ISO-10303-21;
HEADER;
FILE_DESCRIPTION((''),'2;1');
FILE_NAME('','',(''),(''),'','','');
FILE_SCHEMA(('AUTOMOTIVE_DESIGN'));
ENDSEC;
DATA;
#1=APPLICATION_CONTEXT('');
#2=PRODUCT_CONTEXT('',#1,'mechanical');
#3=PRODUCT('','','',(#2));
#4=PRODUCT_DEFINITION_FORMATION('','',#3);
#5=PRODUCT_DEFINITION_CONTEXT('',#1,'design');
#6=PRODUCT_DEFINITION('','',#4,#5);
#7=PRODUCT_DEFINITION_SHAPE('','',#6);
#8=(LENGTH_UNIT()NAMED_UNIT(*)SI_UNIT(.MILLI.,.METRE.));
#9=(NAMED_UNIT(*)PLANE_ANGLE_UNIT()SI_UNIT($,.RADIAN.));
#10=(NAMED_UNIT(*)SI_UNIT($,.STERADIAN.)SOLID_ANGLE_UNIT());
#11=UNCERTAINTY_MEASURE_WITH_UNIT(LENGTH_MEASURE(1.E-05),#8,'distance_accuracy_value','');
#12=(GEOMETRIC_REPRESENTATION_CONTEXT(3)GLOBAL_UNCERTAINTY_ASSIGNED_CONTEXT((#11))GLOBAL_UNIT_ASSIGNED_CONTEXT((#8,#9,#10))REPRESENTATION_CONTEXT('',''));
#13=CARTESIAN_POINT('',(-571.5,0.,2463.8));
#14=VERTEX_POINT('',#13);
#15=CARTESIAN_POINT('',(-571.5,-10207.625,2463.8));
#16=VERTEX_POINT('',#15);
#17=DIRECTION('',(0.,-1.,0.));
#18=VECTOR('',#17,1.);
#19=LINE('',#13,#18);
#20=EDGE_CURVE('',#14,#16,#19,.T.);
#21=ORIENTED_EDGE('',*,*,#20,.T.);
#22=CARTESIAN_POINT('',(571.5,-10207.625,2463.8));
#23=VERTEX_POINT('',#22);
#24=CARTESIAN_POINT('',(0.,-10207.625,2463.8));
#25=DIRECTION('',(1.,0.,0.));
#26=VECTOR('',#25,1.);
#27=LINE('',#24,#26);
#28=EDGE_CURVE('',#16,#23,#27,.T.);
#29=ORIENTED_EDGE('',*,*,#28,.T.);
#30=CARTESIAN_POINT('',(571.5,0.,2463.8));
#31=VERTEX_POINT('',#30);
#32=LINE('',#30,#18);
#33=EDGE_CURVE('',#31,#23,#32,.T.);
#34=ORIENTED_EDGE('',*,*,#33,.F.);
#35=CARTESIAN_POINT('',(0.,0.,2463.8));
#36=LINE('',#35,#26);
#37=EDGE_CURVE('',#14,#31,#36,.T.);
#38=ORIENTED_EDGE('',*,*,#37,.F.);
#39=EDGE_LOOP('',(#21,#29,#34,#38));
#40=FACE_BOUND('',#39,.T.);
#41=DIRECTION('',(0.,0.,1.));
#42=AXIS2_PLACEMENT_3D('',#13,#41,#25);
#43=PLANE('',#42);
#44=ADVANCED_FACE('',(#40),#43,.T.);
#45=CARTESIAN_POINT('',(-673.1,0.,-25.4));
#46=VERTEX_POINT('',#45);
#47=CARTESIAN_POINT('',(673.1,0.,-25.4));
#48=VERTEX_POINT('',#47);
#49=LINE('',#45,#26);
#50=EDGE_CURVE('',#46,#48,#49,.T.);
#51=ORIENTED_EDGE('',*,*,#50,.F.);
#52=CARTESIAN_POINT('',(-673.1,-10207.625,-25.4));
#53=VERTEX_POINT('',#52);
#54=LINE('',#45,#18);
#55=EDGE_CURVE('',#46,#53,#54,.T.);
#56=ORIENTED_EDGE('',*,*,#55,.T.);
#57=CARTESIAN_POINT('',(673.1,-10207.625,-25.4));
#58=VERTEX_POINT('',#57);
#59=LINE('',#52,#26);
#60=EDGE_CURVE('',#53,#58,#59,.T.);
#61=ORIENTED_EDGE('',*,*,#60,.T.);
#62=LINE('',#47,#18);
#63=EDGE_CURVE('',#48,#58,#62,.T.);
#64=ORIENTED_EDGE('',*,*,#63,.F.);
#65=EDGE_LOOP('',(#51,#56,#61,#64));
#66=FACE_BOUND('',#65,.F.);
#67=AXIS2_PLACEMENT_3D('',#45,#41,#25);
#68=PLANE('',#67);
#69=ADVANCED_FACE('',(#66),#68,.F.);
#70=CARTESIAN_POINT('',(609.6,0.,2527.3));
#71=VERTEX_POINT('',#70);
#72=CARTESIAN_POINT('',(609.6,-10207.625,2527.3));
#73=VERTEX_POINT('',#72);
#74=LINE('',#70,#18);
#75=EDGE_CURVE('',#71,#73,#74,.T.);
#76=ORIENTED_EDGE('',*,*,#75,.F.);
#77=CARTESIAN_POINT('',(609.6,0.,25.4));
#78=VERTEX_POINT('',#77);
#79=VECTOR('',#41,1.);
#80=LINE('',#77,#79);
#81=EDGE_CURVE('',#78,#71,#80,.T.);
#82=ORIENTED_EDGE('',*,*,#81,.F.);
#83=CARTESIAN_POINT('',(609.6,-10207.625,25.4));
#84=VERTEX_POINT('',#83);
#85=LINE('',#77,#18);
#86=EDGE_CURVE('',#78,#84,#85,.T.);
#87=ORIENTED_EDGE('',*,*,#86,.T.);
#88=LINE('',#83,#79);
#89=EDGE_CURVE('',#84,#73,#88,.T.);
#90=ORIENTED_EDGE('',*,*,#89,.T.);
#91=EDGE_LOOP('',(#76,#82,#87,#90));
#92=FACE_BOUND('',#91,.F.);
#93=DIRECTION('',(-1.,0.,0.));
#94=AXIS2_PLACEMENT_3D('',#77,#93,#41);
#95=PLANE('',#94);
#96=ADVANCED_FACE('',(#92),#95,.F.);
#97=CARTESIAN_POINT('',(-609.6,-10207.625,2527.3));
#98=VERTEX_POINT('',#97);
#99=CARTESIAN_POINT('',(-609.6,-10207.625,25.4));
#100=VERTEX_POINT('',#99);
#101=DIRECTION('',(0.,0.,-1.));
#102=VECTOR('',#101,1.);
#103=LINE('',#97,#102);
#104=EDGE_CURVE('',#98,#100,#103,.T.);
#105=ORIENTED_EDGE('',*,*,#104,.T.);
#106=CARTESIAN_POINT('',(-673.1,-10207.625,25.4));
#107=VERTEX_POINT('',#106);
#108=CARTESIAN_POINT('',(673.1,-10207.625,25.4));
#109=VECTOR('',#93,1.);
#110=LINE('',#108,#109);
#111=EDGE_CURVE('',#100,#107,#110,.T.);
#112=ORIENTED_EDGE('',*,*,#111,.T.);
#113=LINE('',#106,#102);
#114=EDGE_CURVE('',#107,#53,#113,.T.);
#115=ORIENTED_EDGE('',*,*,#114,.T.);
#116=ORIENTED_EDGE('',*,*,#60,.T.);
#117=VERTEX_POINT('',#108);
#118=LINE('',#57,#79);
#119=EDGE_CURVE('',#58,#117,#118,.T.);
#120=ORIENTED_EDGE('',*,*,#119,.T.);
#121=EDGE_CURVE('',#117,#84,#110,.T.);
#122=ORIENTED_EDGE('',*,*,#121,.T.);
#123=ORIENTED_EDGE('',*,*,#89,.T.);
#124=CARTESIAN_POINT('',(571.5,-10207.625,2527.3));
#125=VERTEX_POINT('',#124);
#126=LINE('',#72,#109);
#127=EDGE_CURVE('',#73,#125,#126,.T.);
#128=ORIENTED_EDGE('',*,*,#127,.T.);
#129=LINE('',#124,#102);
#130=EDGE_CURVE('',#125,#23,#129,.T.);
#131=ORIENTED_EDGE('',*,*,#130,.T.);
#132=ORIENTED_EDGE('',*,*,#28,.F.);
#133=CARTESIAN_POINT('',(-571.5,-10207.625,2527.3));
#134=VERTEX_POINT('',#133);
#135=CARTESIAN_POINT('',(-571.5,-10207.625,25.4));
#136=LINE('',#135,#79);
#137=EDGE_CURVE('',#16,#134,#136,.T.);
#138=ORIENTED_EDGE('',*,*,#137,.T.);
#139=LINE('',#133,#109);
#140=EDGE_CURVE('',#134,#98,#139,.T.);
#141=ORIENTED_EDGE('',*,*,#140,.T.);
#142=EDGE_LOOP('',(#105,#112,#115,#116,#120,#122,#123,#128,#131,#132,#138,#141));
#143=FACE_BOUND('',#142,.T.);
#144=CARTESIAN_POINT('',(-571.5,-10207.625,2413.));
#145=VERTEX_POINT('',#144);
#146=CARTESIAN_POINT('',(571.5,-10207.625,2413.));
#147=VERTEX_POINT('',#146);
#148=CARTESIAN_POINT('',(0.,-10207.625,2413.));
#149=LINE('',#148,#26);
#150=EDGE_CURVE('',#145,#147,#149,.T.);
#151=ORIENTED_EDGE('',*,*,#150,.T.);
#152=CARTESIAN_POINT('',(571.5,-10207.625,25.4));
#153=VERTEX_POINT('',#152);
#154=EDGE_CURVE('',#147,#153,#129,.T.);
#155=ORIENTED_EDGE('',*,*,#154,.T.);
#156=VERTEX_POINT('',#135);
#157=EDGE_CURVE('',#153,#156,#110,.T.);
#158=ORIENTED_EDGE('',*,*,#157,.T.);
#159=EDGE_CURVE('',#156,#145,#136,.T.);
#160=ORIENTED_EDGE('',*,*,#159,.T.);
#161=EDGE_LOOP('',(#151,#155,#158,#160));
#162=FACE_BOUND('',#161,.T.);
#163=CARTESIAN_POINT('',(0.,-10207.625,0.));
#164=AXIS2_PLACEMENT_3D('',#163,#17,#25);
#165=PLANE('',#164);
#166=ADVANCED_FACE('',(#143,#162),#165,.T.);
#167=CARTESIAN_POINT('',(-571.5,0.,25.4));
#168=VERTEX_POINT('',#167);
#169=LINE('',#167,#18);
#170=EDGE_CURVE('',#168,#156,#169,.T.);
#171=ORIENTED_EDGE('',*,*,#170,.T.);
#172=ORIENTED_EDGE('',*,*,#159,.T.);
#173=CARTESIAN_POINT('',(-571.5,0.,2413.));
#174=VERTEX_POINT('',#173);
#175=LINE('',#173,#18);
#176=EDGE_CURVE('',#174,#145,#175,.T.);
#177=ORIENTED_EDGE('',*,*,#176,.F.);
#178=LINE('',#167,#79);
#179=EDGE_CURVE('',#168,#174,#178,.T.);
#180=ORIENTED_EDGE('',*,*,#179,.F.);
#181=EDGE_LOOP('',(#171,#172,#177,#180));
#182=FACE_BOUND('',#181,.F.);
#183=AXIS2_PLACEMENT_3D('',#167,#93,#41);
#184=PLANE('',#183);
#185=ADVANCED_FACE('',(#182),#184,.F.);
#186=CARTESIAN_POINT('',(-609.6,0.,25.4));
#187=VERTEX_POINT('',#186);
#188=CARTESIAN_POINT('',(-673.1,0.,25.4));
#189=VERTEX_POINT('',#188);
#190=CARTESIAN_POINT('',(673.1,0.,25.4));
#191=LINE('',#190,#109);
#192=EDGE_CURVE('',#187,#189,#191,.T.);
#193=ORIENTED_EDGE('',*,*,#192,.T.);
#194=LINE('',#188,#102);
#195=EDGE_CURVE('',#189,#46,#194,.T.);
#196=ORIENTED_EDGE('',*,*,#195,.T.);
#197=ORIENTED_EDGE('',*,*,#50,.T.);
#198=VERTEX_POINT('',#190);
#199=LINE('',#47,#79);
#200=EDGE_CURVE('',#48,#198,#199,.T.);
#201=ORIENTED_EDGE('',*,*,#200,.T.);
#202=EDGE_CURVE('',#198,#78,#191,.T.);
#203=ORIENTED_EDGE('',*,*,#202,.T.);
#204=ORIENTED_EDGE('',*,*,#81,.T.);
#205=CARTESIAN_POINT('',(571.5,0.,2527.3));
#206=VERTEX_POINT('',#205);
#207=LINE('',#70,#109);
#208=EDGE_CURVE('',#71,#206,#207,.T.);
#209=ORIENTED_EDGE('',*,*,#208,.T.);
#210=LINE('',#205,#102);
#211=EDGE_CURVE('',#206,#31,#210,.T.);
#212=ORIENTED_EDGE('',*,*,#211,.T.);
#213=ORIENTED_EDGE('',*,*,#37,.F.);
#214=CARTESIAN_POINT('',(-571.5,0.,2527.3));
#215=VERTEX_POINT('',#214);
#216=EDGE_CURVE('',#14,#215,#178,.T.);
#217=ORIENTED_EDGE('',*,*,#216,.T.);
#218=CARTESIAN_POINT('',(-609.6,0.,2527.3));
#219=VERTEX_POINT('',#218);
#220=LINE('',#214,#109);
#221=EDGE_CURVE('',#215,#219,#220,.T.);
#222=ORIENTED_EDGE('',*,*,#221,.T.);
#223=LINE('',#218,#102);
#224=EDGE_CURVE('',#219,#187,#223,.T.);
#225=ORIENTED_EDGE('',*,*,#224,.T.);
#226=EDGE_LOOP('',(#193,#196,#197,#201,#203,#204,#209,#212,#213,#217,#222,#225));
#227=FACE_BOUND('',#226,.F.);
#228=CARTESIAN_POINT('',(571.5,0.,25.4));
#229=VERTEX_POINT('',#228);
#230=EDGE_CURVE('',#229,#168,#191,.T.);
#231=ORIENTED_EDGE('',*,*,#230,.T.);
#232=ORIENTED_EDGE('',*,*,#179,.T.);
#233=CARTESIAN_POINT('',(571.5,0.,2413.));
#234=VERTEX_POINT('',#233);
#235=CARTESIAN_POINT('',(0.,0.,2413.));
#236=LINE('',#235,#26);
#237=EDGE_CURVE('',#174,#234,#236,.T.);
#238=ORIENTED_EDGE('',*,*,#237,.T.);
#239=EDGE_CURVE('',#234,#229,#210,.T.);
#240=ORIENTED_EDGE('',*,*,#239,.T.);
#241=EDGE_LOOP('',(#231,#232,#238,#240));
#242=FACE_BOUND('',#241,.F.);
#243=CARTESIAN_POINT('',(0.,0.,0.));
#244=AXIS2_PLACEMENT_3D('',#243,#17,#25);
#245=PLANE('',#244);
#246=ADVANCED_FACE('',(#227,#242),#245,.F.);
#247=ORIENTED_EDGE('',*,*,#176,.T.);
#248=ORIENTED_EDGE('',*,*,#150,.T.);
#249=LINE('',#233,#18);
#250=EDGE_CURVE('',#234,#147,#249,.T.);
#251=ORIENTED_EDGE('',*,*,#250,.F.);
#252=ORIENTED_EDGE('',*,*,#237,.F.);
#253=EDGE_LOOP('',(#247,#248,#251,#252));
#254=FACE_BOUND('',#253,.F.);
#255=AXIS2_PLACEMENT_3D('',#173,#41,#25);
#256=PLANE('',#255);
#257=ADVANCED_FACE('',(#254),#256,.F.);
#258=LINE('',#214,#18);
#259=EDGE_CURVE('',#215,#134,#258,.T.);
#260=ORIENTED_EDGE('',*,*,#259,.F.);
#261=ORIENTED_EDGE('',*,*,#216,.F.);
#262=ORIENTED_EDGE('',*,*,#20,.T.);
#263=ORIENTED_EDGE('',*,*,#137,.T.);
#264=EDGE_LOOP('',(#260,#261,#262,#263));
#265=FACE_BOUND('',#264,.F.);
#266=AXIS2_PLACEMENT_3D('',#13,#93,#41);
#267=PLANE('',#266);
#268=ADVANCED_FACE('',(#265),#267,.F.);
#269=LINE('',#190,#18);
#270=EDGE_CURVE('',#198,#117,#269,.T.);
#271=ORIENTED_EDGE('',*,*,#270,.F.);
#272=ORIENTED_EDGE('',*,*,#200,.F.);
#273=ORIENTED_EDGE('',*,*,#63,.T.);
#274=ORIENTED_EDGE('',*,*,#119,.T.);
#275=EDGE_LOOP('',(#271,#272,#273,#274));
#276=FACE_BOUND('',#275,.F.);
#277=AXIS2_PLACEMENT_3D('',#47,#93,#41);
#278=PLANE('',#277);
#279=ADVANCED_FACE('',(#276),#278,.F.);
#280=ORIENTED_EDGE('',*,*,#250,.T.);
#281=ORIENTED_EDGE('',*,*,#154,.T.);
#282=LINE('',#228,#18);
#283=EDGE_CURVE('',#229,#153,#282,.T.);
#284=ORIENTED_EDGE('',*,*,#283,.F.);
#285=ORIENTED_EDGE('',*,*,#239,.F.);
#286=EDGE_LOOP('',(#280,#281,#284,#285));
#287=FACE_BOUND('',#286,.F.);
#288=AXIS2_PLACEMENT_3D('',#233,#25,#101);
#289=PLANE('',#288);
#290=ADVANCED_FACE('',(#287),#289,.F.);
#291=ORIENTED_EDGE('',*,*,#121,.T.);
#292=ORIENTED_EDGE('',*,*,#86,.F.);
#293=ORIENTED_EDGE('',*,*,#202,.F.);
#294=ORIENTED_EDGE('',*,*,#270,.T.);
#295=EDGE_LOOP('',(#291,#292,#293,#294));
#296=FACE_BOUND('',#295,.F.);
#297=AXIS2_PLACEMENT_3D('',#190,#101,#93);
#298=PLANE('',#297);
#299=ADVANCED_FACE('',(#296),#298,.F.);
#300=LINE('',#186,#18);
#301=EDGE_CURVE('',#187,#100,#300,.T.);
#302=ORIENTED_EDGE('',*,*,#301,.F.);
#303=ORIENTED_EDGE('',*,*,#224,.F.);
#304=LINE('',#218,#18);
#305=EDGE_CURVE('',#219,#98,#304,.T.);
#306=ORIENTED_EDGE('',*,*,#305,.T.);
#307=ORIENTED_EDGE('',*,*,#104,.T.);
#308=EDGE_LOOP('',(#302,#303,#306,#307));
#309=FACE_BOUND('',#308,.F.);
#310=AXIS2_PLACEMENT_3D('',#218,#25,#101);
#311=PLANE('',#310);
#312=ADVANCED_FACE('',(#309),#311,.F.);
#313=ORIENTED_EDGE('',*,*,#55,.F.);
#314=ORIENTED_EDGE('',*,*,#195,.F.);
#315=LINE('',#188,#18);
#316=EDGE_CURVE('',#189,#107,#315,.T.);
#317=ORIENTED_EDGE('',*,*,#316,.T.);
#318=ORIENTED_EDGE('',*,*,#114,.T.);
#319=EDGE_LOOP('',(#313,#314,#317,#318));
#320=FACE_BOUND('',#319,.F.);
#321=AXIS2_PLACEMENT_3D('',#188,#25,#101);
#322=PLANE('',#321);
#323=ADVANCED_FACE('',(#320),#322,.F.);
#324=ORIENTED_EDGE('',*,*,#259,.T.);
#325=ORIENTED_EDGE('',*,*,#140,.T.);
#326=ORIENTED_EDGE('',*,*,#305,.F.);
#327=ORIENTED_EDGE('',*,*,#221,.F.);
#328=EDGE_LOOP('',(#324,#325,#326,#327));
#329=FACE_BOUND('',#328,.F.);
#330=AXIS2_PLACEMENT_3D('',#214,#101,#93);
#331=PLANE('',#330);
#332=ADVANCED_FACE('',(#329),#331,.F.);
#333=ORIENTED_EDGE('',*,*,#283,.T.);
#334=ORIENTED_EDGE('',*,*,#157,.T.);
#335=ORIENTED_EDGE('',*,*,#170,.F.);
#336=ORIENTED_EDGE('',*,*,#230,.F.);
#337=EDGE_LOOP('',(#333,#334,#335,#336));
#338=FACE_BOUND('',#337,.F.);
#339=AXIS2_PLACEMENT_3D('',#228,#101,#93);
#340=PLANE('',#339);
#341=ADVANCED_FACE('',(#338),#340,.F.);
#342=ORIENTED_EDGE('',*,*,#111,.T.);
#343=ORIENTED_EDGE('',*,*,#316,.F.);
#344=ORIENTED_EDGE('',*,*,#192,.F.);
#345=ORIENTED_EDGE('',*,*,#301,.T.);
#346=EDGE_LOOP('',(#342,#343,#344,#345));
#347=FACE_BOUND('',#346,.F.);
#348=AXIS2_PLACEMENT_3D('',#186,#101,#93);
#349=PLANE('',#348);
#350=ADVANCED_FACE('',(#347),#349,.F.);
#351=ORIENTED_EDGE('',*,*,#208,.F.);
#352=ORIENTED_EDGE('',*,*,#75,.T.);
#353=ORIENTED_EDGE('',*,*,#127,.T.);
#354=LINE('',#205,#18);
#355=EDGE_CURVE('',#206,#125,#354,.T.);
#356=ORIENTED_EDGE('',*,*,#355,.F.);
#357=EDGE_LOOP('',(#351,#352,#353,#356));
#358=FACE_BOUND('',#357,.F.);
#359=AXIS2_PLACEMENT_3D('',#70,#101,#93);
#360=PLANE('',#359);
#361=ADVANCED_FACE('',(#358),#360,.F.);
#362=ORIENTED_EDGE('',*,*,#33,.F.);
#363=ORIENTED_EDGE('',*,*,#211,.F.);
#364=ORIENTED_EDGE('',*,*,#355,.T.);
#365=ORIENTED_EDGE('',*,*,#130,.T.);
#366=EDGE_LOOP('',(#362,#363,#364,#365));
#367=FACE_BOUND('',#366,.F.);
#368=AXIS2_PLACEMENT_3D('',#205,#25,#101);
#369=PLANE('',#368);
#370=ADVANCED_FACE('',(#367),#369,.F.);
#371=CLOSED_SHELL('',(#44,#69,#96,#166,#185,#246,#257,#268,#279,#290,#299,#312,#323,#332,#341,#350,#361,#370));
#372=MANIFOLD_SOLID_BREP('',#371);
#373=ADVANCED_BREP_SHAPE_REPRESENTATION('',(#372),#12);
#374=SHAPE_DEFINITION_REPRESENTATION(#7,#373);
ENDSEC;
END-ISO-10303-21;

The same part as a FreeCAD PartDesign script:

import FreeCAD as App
import Part
import Sketcher

V = App.Vector
Q = App.Units.Quantity


def add_polygon(sketch, points):
    """Adds a closed chain of lines whose ends are joined by coincident constraints."""
    first, n = sketch.GeometryCount, len(points)
    for a, b in zip(points, points[1:] + points[:1]):
        sketch.addGeometry(Part.LineSegment(App.Vector(*a, 0), App.Vector(*b, 0)), False)
    for i in range(n):
        sketch.addConstraint(Sketcher.Constraint("Coincident", first + i, 2, first + (i + 1) % n, 1))

doc = App.newDocument("Part")
body = doc.addObject("PartDesign::Body", "Body")

# Sketch on XZ plane
sketch1 = body.newObject("Sketcher::SketchObject", "Sketch")
sketch1.AttachmentSupport = (doc.getObject("XZ_Plane"), [""])
sketch1.MapMode = "FlatFace"
add_polygon(sketch1, [(-673, -25), (673, -25), (673, 25), (610, 25), (610, 2527), (572, 2527), (572, 2464), (-572, 2464), (-572, 2527), (-610, 2527), (-610, 25), (-673, 25)])  # lines 0-11
add_polygon(sketch1, [(572, 2413), (572, 25), (-572, 25), (-572, 2413)])  # lines 12-15
sketch1.addConstraint(Sketcher.Constraint("Horizontal", 0))
sketch1.addConstraint(Sketcher.Constraint("Vertical", 1))
sketch1.addConstraint(Sketcher.Constraint("Horizontal", 2))
sketch1.addConstraint(Sketcher.Constraint("Vertical", 3))
sketch1.addConstraint(Sketcher.Constraint("Horizontal", 4))
sketch1.addConstraint(Sketcher.Constraint("Vertical", 5))
sketch1.addConstraint(Sketcher.Constraint("Horizontal", 6))
sketch1.addConstraint(Sketcher.Constraint("Vertical", 7))
sketch1.addConstraint(Sketcher.Constraint("Horizontal", 8))
sketch1.addConstraint(Sketcher.Constraint("Vertical", 9))
sketch1.addConstraint(Sketcher.Constraint("Horizontal", 10))
sketch1.addConstraint(Sketcher.Constraint("Vertical", 11))
sketch1.addConstraint(Sketcher.Constraint("Vertical", 12))
sketch1.addConstraint(Sketcher.Constraint("Horizontal", 13))
sketch1.addConstraint(Sketcher.Constraint("Vertical", 14))
sketch1.addConstraint(Sketcher.Constraint("Horizontal", 15))
sketch1.addConstraint(Sketcher.Constraint("Symmetric", 0, 2, 10, 2, -1, 1))
sketch1.addConstraint(Sketcher.Constraint("Symmetric", 4, 2, 7, 2, -2))
sketch1.addConstraint(Sketcher.Constraint("Symmetric", 2, 2, 9, 2, -2))
sketch1.addConstraint(Sketcher.Constraint("Horizontal", 10, 2, 12, 2))
sketch1.addConstraint(Sketcher.Constraint("Vertical", 5, 2, 12, 2))
sketch1.addConstraint(Sketcher.Constraint("Vertical", 7, 2, 13, 2))
sketch1.addConstraint(Sketcher.Constraint("Equal", 10, 5))
sketch1.addConstraint(Sketcher.Constraint("DistanceX", 0, 1, 0, 2, Q("53 in")))
sketch1.addConstraint(Sketcher.Constraint("DistanceX", 6, 2, 6, 1, Q("45 in")))
sketch1.addConstraint(Sketcher.Constraint("DistanceY", 1, 1, 1, 2, Q("2 in")))
sketch1.addConstraint(Sketcher.Constraint("DistanceY", 12, 2, 12, 1, Q("94 in")))
sketch1.addConstraint(Sketcher.Constraint("DistanceX", 2, 2, 2, 1, Q("2.5 in")))
sketch1.addConstraint(Sketcher.Constraint("DistanceY", 3, 1, 3, 2, Q("98.5 in")))
pad1 = body.newObject("PartDesign::Pad", "Pad")
pad1.Profile = sketch1
pad1.Length = Q("401.875 in")

doc.recompute()
